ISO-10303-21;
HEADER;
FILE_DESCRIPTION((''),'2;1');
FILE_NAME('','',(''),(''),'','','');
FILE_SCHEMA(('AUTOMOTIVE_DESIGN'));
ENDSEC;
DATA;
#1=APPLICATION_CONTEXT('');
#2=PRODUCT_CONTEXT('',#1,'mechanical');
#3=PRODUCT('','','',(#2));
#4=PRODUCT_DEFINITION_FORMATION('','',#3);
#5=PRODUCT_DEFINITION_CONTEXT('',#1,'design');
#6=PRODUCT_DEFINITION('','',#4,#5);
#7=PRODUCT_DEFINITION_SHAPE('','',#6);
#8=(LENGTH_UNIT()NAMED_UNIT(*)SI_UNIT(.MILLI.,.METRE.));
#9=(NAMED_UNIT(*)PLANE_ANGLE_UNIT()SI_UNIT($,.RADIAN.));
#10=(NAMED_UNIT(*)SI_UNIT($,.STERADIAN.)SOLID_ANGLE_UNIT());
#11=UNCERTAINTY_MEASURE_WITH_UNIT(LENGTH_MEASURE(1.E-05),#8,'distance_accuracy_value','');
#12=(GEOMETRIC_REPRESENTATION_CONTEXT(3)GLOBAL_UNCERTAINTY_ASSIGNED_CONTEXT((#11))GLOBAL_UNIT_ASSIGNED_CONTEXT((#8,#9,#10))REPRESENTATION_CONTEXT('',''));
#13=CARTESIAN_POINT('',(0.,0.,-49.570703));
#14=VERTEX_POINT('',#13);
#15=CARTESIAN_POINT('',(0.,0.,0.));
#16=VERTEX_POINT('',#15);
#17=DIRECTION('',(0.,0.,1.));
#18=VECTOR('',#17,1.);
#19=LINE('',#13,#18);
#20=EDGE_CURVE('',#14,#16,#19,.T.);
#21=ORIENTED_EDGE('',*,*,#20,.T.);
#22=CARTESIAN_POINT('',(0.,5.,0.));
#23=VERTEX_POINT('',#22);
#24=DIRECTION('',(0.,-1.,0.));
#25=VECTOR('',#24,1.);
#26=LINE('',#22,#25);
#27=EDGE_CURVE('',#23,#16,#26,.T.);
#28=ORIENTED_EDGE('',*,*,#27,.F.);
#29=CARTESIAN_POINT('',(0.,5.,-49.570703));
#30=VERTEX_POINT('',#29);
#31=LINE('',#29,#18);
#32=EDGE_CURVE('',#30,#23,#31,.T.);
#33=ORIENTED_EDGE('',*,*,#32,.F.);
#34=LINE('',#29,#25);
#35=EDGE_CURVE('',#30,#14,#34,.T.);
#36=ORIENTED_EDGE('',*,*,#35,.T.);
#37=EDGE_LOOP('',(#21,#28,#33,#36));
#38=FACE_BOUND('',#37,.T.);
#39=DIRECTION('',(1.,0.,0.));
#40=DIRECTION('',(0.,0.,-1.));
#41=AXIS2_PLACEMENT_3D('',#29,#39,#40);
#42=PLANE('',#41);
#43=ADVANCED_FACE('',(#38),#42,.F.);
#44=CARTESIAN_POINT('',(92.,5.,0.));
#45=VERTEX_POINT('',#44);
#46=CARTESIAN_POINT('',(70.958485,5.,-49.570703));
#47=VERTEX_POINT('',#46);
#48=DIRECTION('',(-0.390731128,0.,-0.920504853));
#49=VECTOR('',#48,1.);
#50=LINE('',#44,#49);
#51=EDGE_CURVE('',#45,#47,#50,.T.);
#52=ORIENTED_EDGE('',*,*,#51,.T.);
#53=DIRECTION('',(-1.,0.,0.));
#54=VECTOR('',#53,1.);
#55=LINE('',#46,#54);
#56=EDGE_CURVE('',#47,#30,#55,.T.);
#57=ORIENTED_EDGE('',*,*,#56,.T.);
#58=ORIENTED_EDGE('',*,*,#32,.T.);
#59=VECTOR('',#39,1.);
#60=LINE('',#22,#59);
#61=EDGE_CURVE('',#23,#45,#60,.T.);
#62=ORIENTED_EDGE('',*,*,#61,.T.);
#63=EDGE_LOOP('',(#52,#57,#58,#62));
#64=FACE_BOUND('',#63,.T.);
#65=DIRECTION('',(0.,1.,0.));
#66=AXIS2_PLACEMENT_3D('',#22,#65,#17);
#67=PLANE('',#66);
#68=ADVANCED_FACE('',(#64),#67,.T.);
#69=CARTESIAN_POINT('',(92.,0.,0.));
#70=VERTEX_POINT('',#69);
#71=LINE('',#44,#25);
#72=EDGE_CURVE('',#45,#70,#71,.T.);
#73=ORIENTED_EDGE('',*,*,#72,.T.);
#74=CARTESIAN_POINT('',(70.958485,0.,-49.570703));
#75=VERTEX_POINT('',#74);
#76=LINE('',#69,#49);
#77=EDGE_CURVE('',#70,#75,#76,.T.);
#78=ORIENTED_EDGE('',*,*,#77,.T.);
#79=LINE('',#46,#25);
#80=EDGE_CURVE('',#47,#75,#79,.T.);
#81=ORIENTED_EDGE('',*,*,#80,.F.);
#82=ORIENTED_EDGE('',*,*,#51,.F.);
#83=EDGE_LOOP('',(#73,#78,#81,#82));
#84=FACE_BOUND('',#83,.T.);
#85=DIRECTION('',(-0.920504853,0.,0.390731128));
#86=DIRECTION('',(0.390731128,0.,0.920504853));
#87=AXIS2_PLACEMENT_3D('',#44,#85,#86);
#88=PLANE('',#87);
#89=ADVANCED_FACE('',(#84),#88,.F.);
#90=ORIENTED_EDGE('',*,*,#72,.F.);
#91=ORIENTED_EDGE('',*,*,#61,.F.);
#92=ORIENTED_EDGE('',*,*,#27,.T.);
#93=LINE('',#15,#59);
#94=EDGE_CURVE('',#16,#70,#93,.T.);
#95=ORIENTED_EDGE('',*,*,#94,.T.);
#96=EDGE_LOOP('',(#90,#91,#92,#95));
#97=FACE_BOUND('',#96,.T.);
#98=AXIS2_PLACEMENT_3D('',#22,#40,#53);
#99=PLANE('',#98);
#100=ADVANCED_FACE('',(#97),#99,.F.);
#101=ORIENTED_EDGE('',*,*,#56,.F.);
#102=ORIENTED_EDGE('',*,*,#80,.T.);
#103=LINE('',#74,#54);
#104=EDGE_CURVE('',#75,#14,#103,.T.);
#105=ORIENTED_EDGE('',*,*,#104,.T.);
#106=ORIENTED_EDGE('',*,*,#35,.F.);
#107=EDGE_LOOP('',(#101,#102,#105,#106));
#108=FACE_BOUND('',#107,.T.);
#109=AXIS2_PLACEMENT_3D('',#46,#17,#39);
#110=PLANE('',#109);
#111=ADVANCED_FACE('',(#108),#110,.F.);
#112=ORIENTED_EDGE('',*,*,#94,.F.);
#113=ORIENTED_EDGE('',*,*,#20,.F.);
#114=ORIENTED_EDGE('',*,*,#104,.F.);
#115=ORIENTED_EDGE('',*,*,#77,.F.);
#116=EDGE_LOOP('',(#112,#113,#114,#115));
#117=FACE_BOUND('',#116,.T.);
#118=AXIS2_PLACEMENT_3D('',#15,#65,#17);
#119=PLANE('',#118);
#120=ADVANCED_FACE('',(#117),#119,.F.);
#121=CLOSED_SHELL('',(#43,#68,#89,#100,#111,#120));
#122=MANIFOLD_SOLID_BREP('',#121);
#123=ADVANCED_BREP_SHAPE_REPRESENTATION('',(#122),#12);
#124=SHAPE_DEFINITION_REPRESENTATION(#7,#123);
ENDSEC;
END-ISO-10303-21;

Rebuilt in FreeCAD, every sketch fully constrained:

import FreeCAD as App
import Part
import Sketcher

V = App.Vector
Q = App.Units.Quantity


def add_polygon(sketch, points):
    """Adds a closed chain of lines whose ends are joined by coincident constraints."""
    first, n = sketch.GeometryCount, len(points)
    for a, b in zip(points, points[1:] + points[:1]):
        sketch.addGeometry(Part.LineSegment(App.Vector(*a, 0), App.Vector(*b, 0)), False)
    for i in range(n):
        sketch.addConstraint(Sketcher.Constraint("Coincident", first + i, 2, first + (i + 1) % n, 1))

doc = App.newDocument("Part")
body = doc.addObject("PartDesign::Body", "Body")

sketch1 = body.newObject("Sketcher::SketchObject", "Sketch")
sketch1.AttachmentSupport = (doc.getObject("XZ_Plane"), [""])
sketch1.MapMode = "FlatFace"
add_polygon(sketch1, [(0, 0), (92, 0), (71, -50), (0, -50)])
sketch1.addConstraint(Sketcher.Constraint("Horizontal", 0))
sketch1.addConstraint(Sketcher.Constraint("Horizontal", 2))
sketch1.addConstraint(Sketcher.Constraint("Vertical", 3))
sketch1.addConstraint(Sketcher.Constraint("Coincident", 3, 2, -1, 1))
sketch1.addConstraint(Sketcher.Constraint("DistanceX", 0, 1, 0, 2, 92.0))
sketch1.addConstraint(Sketcher.Constraint("Angle", 1, Q("-113 deg")))
sketch1.addConstraint(Sketcher.Constraint("Distance", 1, 53.851648))
pad1 = body.newObject("PartDesign::Pad", "Pad")
pad1.Profile = sketch1
pad1.Length = 5
pad1.Reversed = True

doc.recompute()
